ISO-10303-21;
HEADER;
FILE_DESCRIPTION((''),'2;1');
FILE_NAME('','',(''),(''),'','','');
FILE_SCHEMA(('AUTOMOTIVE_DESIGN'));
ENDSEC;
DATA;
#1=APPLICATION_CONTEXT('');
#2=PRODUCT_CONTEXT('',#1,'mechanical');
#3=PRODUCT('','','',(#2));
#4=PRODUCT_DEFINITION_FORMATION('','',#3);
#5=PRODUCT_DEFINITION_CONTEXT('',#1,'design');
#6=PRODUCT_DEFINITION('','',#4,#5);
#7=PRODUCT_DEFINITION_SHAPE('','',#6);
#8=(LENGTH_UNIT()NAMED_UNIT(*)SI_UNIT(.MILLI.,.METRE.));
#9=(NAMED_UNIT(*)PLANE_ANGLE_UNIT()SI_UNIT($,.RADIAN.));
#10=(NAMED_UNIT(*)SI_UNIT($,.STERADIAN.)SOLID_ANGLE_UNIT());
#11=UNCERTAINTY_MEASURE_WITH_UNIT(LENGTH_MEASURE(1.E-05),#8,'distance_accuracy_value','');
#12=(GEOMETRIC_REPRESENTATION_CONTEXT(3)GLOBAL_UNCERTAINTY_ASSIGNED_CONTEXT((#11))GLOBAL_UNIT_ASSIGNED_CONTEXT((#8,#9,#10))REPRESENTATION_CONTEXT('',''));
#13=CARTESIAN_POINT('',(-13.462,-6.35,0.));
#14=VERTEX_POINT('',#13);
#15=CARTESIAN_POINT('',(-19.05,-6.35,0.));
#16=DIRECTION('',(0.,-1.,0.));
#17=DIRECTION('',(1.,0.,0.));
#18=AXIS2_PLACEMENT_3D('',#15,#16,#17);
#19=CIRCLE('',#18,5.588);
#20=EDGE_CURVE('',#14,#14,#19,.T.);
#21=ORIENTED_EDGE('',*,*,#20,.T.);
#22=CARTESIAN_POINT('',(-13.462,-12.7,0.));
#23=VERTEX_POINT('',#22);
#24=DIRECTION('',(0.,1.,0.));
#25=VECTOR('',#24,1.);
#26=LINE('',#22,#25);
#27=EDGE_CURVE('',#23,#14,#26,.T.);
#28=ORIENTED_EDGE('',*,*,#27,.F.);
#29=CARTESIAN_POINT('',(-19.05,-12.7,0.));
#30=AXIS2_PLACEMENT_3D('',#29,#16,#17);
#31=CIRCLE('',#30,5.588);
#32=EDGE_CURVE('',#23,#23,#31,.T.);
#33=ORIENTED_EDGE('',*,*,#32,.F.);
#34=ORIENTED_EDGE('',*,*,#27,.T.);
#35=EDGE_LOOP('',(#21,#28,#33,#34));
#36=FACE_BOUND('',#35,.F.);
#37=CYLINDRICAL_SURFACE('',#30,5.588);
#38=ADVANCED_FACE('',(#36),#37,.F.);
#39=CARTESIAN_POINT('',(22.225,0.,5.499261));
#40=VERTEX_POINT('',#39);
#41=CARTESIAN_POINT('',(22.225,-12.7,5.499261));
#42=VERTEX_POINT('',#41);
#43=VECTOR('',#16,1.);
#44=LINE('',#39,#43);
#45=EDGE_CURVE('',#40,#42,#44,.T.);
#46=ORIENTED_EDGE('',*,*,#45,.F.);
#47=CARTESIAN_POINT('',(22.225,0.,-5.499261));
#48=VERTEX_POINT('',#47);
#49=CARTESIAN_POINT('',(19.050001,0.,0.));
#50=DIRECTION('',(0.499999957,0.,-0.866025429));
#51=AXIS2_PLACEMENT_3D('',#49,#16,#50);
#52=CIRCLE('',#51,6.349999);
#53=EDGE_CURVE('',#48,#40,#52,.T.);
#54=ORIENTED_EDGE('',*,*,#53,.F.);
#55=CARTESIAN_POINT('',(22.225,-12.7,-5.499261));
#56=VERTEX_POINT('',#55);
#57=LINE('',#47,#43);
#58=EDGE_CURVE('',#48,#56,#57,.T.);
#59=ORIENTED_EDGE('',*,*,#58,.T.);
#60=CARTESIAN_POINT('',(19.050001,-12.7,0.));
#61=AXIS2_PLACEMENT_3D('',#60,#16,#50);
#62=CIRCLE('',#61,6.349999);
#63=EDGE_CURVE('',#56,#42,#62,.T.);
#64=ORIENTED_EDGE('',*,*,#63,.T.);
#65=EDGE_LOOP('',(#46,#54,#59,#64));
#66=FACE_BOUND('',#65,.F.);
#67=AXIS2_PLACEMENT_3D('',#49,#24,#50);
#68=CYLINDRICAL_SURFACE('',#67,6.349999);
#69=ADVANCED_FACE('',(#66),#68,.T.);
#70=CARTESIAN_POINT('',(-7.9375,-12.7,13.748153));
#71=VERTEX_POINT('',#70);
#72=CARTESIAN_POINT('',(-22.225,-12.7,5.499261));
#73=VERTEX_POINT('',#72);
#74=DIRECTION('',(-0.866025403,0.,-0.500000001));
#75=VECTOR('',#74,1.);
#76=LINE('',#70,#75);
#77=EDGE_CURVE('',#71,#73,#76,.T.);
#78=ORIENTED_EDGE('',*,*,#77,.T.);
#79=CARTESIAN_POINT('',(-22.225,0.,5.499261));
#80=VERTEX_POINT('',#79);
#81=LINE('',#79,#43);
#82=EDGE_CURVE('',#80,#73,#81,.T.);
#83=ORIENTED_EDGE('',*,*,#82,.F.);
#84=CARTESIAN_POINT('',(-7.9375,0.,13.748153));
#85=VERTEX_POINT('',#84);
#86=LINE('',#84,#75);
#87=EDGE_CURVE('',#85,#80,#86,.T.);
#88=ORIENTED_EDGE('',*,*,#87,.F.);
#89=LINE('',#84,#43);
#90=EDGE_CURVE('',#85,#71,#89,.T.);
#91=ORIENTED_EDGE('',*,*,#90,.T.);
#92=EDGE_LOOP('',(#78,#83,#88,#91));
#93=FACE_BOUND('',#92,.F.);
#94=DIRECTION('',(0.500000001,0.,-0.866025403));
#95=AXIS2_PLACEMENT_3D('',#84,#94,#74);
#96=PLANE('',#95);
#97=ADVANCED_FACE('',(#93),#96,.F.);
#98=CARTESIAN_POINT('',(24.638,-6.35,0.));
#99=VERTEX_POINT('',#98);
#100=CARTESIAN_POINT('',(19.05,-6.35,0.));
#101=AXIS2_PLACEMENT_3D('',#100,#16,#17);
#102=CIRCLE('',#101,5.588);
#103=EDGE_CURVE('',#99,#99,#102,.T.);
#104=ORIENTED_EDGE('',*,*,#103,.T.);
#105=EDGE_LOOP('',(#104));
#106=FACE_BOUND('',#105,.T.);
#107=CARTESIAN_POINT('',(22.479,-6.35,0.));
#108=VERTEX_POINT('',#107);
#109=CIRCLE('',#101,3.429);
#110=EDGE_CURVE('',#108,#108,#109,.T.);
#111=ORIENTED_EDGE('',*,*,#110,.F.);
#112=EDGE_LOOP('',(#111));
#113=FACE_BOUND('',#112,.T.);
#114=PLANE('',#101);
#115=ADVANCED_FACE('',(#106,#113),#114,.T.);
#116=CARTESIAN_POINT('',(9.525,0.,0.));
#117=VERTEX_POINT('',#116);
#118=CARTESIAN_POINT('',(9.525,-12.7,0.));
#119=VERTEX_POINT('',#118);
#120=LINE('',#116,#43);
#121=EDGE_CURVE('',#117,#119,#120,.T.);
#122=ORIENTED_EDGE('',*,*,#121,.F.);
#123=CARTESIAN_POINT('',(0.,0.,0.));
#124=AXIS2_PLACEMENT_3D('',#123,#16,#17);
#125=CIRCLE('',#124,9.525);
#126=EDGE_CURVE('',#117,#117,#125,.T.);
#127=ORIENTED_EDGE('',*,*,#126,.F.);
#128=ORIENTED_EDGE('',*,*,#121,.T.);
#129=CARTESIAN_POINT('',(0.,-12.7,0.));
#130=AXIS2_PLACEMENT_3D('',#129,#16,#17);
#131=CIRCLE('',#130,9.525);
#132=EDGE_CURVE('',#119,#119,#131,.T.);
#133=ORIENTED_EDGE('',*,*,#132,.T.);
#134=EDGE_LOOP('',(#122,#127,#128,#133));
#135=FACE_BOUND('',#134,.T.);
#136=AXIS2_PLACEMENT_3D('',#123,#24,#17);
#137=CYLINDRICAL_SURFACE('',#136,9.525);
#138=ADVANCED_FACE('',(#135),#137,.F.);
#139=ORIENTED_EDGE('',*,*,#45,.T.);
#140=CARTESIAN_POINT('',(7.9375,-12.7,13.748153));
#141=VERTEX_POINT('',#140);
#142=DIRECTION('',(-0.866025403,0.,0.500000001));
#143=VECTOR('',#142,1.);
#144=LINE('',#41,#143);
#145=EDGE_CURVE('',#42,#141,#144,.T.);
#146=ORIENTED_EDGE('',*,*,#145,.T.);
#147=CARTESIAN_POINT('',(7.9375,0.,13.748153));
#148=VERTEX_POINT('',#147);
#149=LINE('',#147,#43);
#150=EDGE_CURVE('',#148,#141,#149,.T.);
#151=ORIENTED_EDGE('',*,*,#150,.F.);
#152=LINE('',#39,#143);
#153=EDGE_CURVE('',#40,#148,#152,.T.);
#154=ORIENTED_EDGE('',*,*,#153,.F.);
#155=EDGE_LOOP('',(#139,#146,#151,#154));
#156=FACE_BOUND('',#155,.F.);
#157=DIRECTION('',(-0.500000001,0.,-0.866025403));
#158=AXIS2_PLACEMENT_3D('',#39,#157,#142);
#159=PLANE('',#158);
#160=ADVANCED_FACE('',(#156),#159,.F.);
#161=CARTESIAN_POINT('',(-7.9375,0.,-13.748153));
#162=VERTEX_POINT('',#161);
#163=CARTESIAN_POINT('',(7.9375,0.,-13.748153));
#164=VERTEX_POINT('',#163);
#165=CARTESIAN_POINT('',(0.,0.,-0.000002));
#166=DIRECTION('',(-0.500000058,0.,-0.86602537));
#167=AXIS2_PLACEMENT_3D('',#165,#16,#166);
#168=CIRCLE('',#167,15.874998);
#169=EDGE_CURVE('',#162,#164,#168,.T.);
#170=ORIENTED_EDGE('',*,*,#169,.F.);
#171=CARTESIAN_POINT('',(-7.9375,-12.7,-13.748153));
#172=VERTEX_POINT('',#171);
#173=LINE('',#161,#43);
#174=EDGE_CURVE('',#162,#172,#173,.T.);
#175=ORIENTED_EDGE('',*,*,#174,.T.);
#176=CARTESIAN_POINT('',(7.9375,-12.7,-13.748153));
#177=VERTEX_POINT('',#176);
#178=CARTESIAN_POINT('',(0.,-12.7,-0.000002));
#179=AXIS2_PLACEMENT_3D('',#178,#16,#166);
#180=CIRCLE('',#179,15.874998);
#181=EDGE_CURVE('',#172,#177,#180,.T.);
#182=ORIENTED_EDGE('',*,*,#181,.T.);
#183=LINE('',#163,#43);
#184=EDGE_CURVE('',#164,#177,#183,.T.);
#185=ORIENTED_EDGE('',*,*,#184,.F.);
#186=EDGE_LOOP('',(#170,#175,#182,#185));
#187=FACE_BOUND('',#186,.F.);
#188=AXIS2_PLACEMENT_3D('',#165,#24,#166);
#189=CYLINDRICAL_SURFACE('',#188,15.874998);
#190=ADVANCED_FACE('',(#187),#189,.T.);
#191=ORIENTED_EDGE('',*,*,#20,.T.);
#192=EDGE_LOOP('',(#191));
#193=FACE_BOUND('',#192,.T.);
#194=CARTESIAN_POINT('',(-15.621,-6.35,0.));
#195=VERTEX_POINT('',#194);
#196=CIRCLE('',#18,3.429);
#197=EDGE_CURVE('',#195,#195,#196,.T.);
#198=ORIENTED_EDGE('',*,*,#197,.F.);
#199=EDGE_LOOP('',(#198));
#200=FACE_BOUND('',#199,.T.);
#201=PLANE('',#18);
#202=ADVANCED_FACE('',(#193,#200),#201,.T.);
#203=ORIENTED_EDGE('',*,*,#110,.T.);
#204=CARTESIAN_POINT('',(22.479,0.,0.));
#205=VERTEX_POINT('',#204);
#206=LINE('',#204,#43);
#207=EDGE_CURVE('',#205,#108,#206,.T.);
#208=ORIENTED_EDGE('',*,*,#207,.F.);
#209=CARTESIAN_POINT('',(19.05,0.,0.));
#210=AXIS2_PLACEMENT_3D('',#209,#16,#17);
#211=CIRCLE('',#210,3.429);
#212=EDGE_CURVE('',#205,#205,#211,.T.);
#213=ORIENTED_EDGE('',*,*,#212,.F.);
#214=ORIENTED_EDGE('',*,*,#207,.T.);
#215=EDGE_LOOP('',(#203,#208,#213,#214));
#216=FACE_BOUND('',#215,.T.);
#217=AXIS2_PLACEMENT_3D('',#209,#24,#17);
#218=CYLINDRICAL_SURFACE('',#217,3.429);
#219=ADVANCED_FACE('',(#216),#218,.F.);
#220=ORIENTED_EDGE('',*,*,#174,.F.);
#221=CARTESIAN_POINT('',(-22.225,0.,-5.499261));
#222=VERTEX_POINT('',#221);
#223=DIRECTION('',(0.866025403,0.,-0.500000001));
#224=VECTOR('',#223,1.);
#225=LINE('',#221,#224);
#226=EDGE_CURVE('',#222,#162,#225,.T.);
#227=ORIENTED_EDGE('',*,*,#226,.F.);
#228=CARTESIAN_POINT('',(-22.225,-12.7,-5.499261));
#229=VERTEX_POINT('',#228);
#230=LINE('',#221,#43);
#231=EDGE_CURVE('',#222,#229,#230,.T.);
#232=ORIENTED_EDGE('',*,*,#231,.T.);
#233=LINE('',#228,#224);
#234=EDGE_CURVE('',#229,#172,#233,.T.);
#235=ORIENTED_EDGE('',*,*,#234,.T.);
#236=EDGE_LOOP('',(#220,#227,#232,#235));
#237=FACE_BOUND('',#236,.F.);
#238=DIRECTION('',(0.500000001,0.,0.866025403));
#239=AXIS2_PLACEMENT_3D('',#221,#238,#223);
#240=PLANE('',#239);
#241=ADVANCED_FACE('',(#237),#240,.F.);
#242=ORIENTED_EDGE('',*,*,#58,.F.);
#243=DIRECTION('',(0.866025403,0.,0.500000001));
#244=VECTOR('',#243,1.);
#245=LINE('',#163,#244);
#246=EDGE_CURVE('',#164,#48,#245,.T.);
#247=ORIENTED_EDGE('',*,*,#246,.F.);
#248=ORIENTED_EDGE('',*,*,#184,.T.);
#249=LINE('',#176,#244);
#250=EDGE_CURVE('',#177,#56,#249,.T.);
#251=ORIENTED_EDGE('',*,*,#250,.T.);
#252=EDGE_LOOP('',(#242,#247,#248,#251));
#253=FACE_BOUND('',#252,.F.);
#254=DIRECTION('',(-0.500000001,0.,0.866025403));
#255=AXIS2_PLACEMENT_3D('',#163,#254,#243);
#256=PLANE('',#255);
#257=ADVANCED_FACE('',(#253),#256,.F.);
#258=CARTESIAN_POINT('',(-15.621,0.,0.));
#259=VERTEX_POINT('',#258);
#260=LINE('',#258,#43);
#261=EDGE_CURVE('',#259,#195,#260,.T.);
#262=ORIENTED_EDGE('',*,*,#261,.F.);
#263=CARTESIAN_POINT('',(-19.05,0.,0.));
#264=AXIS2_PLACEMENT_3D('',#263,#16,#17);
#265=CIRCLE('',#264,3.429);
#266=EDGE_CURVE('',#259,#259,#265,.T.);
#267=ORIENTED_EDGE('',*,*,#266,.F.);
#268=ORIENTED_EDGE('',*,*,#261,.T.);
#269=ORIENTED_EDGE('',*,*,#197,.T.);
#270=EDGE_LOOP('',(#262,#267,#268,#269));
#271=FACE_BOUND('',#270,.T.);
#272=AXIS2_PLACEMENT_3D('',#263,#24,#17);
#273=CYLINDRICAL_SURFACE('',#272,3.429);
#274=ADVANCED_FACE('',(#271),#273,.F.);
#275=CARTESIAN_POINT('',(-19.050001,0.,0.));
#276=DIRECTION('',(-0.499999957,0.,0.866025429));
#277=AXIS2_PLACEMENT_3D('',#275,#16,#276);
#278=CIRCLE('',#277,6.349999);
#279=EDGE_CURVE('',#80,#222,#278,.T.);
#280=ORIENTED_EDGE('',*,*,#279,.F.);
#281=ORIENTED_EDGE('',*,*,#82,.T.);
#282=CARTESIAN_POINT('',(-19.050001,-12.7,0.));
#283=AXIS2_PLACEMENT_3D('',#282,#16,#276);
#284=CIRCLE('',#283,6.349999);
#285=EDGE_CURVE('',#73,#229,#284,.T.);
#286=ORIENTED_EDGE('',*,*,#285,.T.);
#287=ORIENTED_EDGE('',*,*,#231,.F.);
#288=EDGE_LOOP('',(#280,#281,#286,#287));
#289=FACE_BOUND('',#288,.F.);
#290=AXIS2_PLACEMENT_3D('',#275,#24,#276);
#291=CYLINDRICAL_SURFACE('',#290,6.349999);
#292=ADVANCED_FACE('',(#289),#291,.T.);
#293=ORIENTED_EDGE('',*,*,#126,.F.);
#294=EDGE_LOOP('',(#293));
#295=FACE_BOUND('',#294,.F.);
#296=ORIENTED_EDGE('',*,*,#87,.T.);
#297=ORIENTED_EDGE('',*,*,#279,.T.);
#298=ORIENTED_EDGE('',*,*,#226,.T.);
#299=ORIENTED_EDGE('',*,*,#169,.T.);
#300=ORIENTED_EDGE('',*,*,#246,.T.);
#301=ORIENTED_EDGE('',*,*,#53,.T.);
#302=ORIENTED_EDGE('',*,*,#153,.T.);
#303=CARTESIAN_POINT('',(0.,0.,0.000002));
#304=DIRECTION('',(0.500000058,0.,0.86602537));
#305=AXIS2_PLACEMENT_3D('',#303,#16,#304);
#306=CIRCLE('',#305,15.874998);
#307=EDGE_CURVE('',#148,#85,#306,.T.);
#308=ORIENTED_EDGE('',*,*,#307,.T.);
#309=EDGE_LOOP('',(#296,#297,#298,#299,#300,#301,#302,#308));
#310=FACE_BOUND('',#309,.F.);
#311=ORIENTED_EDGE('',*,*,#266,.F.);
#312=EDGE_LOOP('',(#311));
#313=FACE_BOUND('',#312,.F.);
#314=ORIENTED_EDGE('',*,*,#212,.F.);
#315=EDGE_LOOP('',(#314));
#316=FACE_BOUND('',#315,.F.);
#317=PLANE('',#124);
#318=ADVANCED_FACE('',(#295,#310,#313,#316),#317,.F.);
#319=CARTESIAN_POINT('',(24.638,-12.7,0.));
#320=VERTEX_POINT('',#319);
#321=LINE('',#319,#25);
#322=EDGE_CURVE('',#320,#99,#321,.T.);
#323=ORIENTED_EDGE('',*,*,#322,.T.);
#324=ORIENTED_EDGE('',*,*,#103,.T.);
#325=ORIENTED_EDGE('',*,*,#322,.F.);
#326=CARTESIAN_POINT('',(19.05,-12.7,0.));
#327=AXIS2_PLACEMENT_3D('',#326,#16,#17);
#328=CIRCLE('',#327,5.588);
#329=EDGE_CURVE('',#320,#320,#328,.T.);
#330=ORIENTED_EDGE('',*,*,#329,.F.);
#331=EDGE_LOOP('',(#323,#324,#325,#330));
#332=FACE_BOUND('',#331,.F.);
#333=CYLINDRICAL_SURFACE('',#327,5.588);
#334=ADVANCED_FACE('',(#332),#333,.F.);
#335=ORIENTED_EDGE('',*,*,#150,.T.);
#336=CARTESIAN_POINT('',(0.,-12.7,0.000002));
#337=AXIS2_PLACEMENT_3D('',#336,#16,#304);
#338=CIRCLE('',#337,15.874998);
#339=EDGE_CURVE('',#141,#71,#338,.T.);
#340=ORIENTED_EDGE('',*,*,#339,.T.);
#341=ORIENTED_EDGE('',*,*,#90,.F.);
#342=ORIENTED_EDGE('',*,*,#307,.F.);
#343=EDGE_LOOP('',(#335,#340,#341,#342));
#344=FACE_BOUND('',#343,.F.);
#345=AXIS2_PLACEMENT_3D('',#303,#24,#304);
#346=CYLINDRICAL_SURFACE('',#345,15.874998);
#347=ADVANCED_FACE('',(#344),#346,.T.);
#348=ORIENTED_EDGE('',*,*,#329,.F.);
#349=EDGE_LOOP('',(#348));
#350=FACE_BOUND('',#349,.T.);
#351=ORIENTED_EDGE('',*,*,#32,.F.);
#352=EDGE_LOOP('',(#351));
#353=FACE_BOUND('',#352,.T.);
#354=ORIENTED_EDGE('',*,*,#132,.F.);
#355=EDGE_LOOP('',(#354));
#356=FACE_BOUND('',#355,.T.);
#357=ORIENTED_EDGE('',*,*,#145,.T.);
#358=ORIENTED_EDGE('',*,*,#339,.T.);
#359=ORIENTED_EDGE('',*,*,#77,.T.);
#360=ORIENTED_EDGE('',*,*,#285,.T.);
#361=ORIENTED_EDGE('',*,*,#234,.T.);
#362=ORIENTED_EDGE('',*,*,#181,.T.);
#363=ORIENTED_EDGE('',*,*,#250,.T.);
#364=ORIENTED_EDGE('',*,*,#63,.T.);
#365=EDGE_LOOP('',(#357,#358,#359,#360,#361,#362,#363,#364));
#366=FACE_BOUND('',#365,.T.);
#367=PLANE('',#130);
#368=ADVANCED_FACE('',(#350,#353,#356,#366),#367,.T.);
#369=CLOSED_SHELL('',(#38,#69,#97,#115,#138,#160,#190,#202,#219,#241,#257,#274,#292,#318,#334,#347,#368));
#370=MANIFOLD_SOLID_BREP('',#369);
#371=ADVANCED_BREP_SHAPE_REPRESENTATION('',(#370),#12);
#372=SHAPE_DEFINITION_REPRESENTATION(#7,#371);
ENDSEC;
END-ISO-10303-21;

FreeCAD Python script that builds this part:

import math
import FreeCAD as App
import Part
import Sketcher
from FreeCAD import Vector
Q = App.Units.Quantity

doc = App.newDocument("Part")
body = doc.addObject("PartDesign::Body", "Body")

sketch1 = body.newObject("Sketcher::SketchObject", "Sketch")
sketch1.AttachmentSupport = (doc.getObject("XZ_Plane"), [""])
sketch1.MapMode = "FlatFace"
sketch1.addGeometry(Part.LineSegment(Vector(-7.9, 13.7, 0), Vector(-22.2, 5.5, 0)), False)
sketch1.addGeometry(Part.ArcOfCircle(Part.Circle(Vector(-19.1, 0, 0), Vector(0, 0, 1), 6.3), math.radians(120), math.radians(240)), False)
sketch1.addGeometry(Part.LineSegment(Vector(-22.2, -5.5, 0), Vector(-7.9, -13.7, 0)), False)
sketch1.addGeometry(Part.ArcOfCircle(Part.Circle(Vector(0, 0, 0), Vector(0, 0, 1), 15.9), math.radians(-120), math.radians(-60)), False)
sketch1.addGeometry(Part.LineSegment(Vector(7.9, -13.7, 0), Vector(22.2, -5.5, 0)), False)
sketch1.addGeometry(Part.ArcOfCircle(Part.Circle(Vector(19.1, 0, 0), Vector(0, 0, 1), 6.3), math.radians(-60), math.radians(60)), False)
sketch1.addGeometry(Part.LineSegment(Vector(22.2, 5.5, 0), Vector(7.9, 13.7, 0)), False)
sketch1.addGeometry(Part.ArcOfCircle(Part.Circle(Vector(0, 0, 0), Vector(0, 0, 1), 15.9), math.radians(60), math.radians(120)), False)
sketch1.addGeometry(Part.Circle(Vector(-19.1, 0, 0), Vector(0, 0, 1), 3.4), False)
sketch1.addGeometry(Part.Circle(Vector(0, 0, 0), Vector(0, 0, 1), 9.5), False)
sketch1.addGeometry(Part.Circle(Vector(19.1, 0, 0), Vector(0, 0, 1), 3.4), False)
sketch1.addConstraint(Sketcher.Constraint("Tangent", 0, 2, 1, 1))
sketch1.addConstraint(Sketcher.Constraint("Tangent", 1, 2, 2, 1))
sketch1.addConstraint(Sketcher.Constraint("Tangent", 2, 2, 3, 1))
sketch1.addConstraint(Sketcher.Constraint("Tangent", 3, 2, 4, 1))
sketch1.addConstraint(Sketcher.Constraint("Tangent", 4, 2, 5, 1))
sketch1.addConstraint(Sketcher.Constraint("Tangent", 5, 2, 6, 1))
sketch1.addConstraint(Sketcher.Constraint("Tangent", 6, 2, 7, 1))
sketch1.addConstraint(Sketcher.Constraint("Tangent", 7, 2, 0, 1))
sketch1.addConstraint(Sketcher.Constraint("Coincident", 3, 3, -1, 1))
sketch1.addConstraint(Sketcher.Constraint("Coincident", 7, 3, -1, 1))
sketch1.addConstraint(Sketcher.Constraint("Coincident", 9, 3, -1, 1))
sketch1.addConstraint(Sketcher.Constraint("Coincident", 8, 3, 1, 3))
sketch1.addConstraint(Sketcher.Constraint("Coincident", 10, 3, 5, 3))
sketch1.addConstraint(Sketcher.Constraint("Equal", 1, 5))
sketch1.addConstraint(Sketcher.Constraint("Equal", 3, 7))
sketch1.addConstraint(Sketcher.Constraint("Equal", 8, 10))
sketch1.addConstraint(Sketcher.Constraint("Symmetric", 1, 3, 5, 3, -1, 1))
sketch1.addConstraint(Sketcher.Constraint("PointOnObject", 1, 3, -1))
sketch1.addConstraint(Sketcher.Constraint("Diameter", 8, Q("0.27 in")))
sketch1.addConstraint(Sketcher.Constraint("Diameter", 9, Q("0.75 in")))
sketch1.addConstraint(Sketcher.Constraint("Radius", 1, Q("0.25 in")))
sketch1.addConstraint(Sketcher.Constraint("Angle", 0, Q("-150 deg")))
sketch1.addConstraint(Sketcher.Constraint("Radius", 3, Q("0.6249999 in")))
pad1 = body.newObject("PartDesign::Pad", "Pad")
pad1.Profile = sketch1
pad1.Length = Q("0.5 in")

sketch2 = body.newObject("Sketcher::SketchObject", "Sketch001")
sketch2.AttachmentSupport = (doc.getObject("XZ_Plane"), [""])
sketch2.MapMode = "FlatFace"
sketch2.AttachmentOffset = App.Placement(Vector(0, 0, 0.5 * 25.4), App.Rotation())
sketch2.addGeometry(Part.Circle(Vector(-19.1, 0, 0), Vector(0, 0, 1), 5.6), False)
sketch2.addGeometry(Part.Circle(Vector(-19.1, 0, 0), Vector(0, 0, 1), 3.4), False)
sketch2.addGeometry(Part.Circle(Vector(19.1, 0, 0), Vector(0, 0, 1), 5.6), False)
sketch2.addGeometry(Part.Circle(Vector(19.1, 0, 0), Vector(0, 0, 1), 3.4), False)
sketch2.addConstraint(Sketcher.Constraint("Coincident", 1, 3, 0, 3))
sketch2.addConstraint(Sketcher.Constraint("Coincident", 3, 3, 2, 3))
sketch2.addConstraint(Sketcher.Constraint("Equal", 0, 2))
sketch2.addConstraint(Sketcher.Constraint("Equal", 1, 3))
sketch2.addConstraint(Sketcher.Constraint("Symmetric", 0, 3, 2, 3, -1, 1))
sketch2.addConstraint(Sketcher.Constraint("PointOnObject", 0, 3, -1))
sketch2.addConstraint(Sketcher.Constraint("Diameter", 0, Q("0.44 in")))
sketch2.addConstraint(Sketcher.Constraint("Diameter", 1, Q("0.27 in")))
sketch2.addConstraint(Sketcher.Constraint("DistanceX", 0, 3, 2, 3, Q("1.5 in")))
pocket1 = body.newObject("PartDesign::Pocket", "Pocket")
pocket1.Profile = sketch2
pocket1.Length = Q("0.25 in")

doc.recompute()
